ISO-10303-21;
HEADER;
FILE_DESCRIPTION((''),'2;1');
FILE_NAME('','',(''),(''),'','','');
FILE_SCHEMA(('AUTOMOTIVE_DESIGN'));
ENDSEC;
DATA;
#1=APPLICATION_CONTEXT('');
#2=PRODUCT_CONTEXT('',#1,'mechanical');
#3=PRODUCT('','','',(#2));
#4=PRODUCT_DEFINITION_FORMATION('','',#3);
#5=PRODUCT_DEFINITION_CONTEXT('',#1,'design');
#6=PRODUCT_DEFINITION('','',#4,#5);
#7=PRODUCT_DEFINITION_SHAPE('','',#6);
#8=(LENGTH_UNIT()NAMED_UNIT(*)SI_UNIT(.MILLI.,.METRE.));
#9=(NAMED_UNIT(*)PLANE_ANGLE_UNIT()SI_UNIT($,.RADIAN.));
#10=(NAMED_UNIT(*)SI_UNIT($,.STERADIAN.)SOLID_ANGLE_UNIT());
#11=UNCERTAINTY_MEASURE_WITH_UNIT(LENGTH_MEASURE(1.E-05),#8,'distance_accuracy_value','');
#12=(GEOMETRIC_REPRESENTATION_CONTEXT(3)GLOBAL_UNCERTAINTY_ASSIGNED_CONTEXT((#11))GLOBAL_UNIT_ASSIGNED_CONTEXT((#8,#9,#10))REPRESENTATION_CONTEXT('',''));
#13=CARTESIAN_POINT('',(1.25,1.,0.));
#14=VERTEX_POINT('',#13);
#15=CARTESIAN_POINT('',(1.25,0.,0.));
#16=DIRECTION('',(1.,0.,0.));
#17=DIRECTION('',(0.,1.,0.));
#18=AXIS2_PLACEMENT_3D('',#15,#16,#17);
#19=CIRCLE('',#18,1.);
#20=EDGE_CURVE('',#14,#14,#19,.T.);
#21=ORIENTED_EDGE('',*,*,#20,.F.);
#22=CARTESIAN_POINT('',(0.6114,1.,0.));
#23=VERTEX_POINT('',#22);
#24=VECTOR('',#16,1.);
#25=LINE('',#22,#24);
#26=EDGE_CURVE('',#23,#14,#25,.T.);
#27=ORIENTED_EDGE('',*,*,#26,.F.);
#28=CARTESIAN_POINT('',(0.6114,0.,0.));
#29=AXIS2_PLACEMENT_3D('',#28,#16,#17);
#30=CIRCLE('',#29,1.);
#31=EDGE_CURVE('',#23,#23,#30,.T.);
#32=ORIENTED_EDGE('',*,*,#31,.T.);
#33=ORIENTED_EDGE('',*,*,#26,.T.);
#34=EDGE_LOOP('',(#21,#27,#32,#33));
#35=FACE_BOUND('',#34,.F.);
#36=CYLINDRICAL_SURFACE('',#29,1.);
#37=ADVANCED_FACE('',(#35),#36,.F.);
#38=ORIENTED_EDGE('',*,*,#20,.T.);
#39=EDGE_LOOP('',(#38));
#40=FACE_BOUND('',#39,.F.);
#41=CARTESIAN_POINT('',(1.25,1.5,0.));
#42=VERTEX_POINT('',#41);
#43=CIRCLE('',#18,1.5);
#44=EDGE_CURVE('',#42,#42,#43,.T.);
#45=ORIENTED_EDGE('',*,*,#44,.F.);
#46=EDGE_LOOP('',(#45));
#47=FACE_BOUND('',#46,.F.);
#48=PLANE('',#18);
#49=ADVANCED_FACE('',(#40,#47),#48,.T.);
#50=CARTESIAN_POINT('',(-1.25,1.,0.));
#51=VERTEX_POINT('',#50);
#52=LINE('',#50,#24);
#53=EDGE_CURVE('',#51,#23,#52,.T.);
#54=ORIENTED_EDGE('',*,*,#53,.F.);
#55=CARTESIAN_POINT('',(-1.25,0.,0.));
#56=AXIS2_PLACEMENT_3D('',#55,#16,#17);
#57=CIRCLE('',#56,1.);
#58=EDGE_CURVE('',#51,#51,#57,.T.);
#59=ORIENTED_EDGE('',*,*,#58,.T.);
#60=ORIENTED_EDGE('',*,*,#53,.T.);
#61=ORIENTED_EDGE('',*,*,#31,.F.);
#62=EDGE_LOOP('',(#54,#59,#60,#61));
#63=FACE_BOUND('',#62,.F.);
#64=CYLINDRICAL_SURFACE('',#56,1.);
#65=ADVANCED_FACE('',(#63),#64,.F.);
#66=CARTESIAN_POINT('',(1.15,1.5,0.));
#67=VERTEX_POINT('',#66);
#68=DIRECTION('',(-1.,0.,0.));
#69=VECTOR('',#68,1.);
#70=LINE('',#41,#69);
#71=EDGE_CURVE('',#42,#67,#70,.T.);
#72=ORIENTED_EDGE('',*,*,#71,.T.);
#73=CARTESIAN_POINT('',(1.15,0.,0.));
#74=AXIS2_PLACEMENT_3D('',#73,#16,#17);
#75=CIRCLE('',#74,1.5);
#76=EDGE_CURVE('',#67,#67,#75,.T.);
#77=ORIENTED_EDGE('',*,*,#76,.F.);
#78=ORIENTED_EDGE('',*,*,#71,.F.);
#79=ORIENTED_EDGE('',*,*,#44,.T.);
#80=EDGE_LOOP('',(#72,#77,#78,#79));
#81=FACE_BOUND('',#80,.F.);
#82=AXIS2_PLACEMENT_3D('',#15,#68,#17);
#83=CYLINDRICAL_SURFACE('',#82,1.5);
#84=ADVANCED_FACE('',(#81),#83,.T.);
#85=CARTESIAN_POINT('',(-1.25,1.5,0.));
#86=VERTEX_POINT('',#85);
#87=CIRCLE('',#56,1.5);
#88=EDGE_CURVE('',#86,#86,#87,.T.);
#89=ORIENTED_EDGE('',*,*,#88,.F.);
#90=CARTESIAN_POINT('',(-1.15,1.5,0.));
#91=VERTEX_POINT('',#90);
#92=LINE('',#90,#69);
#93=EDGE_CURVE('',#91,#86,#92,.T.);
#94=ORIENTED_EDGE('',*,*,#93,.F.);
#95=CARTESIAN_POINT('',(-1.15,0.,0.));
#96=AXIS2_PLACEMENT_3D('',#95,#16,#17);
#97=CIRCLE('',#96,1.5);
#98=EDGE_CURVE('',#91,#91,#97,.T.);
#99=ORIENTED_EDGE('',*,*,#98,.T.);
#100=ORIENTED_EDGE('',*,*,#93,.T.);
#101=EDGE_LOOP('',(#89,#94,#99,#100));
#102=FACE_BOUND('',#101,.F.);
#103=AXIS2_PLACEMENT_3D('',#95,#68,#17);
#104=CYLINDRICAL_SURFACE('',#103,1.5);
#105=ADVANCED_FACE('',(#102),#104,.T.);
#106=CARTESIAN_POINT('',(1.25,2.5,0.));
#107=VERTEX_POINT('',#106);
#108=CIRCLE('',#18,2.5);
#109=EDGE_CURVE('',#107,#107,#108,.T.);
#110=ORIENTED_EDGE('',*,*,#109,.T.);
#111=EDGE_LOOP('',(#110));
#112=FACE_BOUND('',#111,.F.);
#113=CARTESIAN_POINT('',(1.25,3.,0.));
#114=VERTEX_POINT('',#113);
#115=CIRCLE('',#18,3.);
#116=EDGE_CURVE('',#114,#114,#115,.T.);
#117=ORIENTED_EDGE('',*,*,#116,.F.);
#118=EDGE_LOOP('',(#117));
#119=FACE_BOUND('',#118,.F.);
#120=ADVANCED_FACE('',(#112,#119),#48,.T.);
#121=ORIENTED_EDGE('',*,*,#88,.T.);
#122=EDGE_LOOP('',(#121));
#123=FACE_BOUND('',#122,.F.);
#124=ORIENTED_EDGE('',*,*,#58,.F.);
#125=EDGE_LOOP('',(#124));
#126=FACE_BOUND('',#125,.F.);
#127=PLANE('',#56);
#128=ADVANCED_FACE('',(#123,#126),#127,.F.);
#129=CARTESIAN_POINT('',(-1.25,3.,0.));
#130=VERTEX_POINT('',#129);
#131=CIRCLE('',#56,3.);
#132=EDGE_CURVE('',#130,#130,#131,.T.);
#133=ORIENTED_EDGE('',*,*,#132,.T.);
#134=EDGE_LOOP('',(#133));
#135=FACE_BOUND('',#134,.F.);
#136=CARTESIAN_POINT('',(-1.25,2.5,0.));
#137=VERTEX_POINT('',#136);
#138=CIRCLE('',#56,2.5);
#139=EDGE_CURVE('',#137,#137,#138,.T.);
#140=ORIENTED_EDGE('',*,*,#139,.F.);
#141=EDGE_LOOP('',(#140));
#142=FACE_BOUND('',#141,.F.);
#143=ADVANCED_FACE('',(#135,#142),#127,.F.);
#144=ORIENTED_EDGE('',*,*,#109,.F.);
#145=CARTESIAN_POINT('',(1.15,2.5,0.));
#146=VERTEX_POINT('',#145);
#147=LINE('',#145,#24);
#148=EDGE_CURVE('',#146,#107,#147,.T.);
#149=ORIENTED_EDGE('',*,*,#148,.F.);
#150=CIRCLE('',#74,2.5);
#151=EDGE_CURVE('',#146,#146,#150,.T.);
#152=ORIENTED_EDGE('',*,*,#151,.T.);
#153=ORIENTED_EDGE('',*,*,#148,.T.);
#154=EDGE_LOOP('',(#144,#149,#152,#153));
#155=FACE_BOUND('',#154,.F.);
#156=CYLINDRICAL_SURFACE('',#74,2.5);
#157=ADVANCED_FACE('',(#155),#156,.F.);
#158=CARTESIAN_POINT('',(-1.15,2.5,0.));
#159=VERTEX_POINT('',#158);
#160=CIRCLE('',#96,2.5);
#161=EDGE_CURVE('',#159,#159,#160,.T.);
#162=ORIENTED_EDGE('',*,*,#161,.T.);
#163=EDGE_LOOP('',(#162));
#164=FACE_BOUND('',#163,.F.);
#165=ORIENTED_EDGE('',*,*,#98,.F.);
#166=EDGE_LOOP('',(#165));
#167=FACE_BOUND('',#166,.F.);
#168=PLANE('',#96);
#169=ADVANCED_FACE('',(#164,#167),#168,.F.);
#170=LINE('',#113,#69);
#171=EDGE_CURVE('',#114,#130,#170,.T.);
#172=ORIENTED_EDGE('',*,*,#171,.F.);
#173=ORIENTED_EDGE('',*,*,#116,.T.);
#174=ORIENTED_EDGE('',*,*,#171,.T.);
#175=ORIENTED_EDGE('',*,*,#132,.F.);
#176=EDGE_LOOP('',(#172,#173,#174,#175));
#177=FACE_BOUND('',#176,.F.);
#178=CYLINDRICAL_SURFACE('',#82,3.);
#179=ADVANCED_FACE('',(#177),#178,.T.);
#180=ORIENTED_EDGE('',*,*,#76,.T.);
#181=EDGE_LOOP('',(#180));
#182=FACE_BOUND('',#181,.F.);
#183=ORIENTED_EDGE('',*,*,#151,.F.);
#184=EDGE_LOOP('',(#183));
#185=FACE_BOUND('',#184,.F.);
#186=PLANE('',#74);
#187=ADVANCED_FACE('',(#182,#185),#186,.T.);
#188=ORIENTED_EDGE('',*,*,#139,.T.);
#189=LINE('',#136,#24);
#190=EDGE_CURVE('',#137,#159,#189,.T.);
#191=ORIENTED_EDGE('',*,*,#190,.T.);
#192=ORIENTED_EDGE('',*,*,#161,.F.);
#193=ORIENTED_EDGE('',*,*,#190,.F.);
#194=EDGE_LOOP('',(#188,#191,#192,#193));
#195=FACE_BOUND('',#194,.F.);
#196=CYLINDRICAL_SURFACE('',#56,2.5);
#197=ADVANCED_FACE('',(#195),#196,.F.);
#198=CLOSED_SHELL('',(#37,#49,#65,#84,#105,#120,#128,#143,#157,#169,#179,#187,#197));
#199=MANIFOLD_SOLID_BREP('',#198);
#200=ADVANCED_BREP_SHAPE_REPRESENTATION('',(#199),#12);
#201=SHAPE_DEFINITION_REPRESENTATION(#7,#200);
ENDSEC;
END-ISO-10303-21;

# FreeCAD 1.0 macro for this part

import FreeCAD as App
import Part
import Sketcher
from FreeCAD import Vector
Q = App.Units.Quantity

doc = App.newDocument("Part")
body = doc.addObject("PartDesign::Body", "Body")

sketch1 = body.newObject("Sketcher::SketchObject", "Sketch")
sketch1.AttachmentSupport = (doc.getObject("XY_Plane"), [""])
sketch1.MapMode = "FlatFace"
sketch1.addGeometry(Part.LineSegment(Vector(-1.25, 1, 0), Vector(1.25, 1, 0)), False)
sketch1.addGeometry(Part.LineSegment(Vector(1.25, 1, 0), Vector(1.25, 1.5, 0)), False)
sketch1.addGeometry(Part.LineSegment(Vector(1.25, 1.5, 0), Vector(1.15, 1.5, 0)), False)
sketch1.addGeometry(Part.LineSegment(Vector(1.15, 1.5, 0), Vector(1.15, 2.5, 0)), False)
sketch1.addGeometry(Part.LineSegment(Vector(1.15, 2.5, 0), Vector(1.25, 2.5, 0)), False)
sketch1.addGeometry(Part.LineSegment(Vector(1.25, 2.5, 0), Vector(1.25, 3, 0)), False)
sketch1.addGeometry(Part.LineSegment(Vector(1.25, 3, 0), Vector(-1.25, 3, 0)), False)
sketch1.addGeometry(Part.LineSegment(Vector(-1.25, 3, 0), Vector(-1.25, 2.5, 0)), False)
sketch1.addGeometry(Part.LineSegment(Vector(-1.25, 2.5, 0), Vector(-1.15, 2.5, 0)), False)
sketch1.addGeometry(Part.LineSegment(Vector(-1.15, 2.5, 0), Vector(-1.15, 1.5, 0)), False)
sketch1.addGeometry(Part.LineSegment(Vector(-1.15, 1.5, 0), Vector(-1.25, 1.5, 0)), False)
sketch1.addGeometry(Part.LineSegment(Vector(-1.25, 1.5, 0), Vector(-1.25, 1, 0)), False)
sketch1.addConstraint(Sketcher.Constraint("Coincident", 0, 2, 1, 1))
sketch1.addConstraint(Sketcher.Constraint("Coincident", 1, 2, 2, 1))
sketch1.addConstraint(Sketcher.Constraint("Coincident", 2, 2, 3, 1))
sketch1.addConstraint(Sketcher.Constraint("Coincident", 3, 2, 4, 1))
sketch1.addConstraint(Sketcher.Constraint("Coincident", 4, 2, 5, 1))
sketch1.addConstraint(Sketcher.Constraint("Coincident", 5, 2, 6, 1))
sketch1.addConstraint(Sketcher.Constraint("Coincident", 6, 2, 7, 1))
sketch1.addConstraint(Sketcher.Constraint("Coincident", 7, 2, 8, 1))
sketch1.addConstraint(Sketcher.Constraint("Coincident", 8, 2, 9, 1))
sketch1.addConstraint(Sketcher.Constraint("Coincident", 9, 2, 10, 1))
sketch1.addConstraint(Sketcher.Constraint("Coincident", 10, 2, 11, 1))
sketch1.addConstraint(Sketcher.Constraint("Coincident", 11, 2, 0, 1))
sketch1.addConstraint(Sketcher.Constraint("Horizontal", 0))
sketch1.addConstraint(Sketcher.Constraint("Vertical", 1))
sketch1.addConstraint(Sketcher.Constraint("Horizontal", 2))
sketch1.addConstraint(Sketcher.Constraint("Vertical", 3))
sketch1.addConstraint(Sketcher.Constraint("Horizontal", 4))
sketch1.addConstraint(Sketcher.Constraint("Vertical", 5))
sketch1.addConstraint(Sketcher.Constraint("Horizontal", 6))
sketch1.addConstraint(Sketcher.Constraint("Vertical", 7))
sketch1.addConstraint(Sketcher.Constraint("Horizontal", 8))
sketch1.addConstraint(Sketcher.Constraint("Vertical", 9))
sketch1.addConstraint(Sketcher.Constraint("Horizontal", 10))
sketch1.addConstraint(Sketcher.Constraint("Vertical", 11))
sketch1.addConstraint(Sketcher.Constraint("Symmetric", 4, 2, 7, 2, -2))
sketch1.addConstraint(Sketcher.Constraint("Symmetric", 2, 2, 9, 2, -2))
sketch1.addConstraint(Sketcher.Constraint("Vertical", 1, 2, 4, 2))
sketch1.addConstraint(Sketcher.Constraint("Vertical", 7, 2, 10, 2))
sketch1.addConstraint(Sketcher.Constraint("Equal", 1, 5))
sketch1.addConstraint(Sketcher.Constraint("DistanceY", 3, 1, 3, 2, Q("1 mm")))
sketch1.addConstraint(Sketcher.Constraint("DistanceX", 0, 1, 0, 2, Q("2.5 mm")))
sketch1.addConstraint(Sketcher.Constraint("DistanceX", 2, 2, 2, 1, Q("0.1 mm")))
sketch1.addConstraint(Sketcher.Constraint("DistanceY", 1, 1, 1, 2, Q("0.5 mm")))
sketch1.addConstraint(Sketcher.Constraint("DistanceY", -1, 1, 0, 2, Q("1 mm")))
revolution = body.newObject("PartDesign::Revolution", "Revolution")
revolution.Profile = sketch1
revolution.ReferenceAxis = (sketch1, ["H_Axis"])
revolution.Angle = 360

doc.recompute()
